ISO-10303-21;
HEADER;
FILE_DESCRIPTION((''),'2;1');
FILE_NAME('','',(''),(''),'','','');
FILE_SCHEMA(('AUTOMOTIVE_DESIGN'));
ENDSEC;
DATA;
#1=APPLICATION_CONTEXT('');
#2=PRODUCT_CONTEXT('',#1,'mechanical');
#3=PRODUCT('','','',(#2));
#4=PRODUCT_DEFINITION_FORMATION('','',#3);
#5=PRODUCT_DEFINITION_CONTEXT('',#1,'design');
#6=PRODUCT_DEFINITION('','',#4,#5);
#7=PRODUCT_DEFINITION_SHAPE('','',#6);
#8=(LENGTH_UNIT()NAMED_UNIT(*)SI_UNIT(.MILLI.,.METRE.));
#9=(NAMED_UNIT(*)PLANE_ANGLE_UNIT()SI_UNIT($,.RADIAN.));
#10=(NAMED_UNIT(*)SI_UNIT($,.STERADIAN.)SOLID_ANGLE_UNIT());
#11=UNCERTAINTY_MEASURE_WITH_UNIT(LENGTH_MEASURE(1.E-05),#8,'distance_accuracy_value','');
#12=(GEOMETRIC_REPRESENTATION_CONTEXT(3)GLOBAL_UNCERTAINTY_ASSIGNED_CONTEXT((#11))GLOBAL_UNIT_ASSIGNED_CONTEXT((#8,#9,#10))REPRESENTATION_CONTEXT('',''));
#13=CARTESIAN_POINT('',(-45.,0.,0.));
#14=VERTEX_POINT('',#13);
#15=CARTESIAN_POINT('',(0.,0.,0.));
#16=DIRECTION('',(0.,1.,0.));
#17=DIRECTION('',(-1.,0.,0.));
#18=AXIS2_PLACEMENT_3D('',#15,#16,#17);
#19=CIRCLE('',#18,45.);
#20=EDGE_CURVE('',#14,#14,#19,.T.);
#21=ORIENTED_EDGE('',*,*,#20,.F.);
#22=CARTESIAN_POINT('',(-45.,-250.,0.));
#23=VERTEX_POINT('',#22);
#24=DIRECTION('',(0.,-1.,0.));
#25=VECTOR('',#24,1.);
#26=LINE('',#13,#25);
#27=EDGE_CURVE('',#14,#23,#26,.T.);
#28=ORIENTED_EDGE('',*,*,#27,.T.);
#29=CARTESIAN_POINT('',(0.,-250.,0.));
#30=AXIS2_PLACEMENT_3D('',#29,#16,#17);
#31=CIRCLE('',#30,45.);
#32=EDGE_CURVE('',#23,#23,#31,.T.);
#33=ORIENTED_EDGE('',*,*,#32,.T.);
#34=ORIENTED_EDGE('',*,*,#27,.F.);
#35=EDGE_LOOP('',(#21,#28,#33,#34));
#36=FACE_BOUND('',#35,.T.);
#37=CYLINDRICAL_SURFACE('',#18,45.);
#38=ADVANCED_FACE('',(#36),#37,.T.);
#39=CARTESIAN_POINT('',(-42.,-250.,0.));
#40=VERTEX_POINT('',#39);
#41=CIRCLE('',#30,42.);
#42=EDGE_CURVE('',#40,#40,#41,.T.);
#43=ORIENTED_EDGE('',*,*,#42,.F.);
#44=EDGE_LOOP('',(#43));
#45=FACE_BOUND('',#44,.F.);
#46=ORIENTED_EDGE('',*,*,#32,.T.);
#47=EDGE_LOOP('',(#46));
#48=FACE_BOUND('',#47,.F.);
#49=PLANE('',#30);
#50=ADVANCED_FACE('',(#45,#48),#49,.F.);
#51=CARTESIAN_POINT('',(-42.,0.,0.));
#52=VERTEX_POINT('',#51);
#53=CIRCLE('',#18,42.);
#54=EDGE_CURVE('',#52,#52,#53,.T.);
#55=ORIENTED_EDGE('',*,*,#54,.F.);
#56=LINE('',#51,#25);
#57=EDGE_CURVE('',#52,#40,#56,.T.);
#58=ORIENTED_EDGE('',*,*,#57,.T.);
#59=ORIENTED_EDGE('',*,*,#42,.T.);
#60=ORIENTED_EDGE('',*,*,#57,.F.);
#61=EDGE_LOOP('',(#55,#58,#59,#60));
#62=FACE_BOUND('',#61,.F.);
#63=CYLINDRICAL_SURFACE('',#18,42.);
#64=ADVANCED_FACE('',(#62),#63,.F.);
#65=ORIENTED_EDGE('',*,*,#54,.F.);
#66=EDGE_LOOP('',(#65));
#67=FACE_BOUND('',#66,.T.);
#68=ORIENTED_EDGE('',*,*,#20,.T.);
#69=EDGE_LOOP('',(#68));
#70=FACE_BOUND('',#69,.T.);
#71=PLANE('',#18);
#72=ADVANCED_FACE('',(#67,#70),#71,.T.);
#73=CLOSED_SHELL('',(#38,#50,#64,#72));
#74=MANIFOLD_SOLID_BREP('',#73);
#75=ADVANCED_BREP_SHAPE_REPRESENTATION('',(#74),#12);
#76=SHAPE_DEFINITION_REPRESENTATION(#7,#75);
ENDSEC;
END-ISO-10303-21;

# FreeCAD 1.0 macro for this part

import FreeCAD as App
import Part
import Sketcher

V = App.Vector

doc = App.newDocument("Part")
params = doc.addObject("Spreadsheet::Sheet", "Params")
for row, (alias, value) in enumerate([
    ("sketch1_diameter", "90 mm"),
    ("sketch1_diameter2", "84 mm"),
    ("pad1_length", "250 mm"),
], start=1):
    params.set(f"A{row}", alias)
    params.set(f"B{row}", "=" + value)
    params.setAlias(f"B{row}", alias)

body = doc.addObject("PartDesign::Body", "Body")

# Sketch on XZ plane
sketch1 = body.newObject("Sketcher::SketchObject", "Sketch")
sketch1.AttachmentSupport = (doc.getObject("XZ_Plane"), [""])
sketch1.MapMode = "FlatFace"
sketch1.addGeometry([
    Part.Circle(V(0, 0, 0), V(0, 0, 1), 45),
    Part.Circle(V(0, 0, 0), V(0, 0, 1), 42),
], False)
sketch1.addConstraint([
    Sketcher.Constraint("Coincident", 0, 3, -1, 1),
    Sketcher.Constraint("Coincident", 1, 3, -1, 1),
    Sketcher.Constraint("Diameter", 0, 90.0),
    Sketcher.Constraint("Diameter", 1, 84.0),
])
sketch1.setExpression("Constraints[2]", "Params.sketch1_diameter")
sketch1.setExpression("Constraints[3]", "Params.sketch1_diameter2")
pad1 = body.newObject("PartDesign::Pad", "Pad")
pad1.Profile = sketch1
pad1.setExpression("Length", "Params.pad1_length")

doc.recompute()
